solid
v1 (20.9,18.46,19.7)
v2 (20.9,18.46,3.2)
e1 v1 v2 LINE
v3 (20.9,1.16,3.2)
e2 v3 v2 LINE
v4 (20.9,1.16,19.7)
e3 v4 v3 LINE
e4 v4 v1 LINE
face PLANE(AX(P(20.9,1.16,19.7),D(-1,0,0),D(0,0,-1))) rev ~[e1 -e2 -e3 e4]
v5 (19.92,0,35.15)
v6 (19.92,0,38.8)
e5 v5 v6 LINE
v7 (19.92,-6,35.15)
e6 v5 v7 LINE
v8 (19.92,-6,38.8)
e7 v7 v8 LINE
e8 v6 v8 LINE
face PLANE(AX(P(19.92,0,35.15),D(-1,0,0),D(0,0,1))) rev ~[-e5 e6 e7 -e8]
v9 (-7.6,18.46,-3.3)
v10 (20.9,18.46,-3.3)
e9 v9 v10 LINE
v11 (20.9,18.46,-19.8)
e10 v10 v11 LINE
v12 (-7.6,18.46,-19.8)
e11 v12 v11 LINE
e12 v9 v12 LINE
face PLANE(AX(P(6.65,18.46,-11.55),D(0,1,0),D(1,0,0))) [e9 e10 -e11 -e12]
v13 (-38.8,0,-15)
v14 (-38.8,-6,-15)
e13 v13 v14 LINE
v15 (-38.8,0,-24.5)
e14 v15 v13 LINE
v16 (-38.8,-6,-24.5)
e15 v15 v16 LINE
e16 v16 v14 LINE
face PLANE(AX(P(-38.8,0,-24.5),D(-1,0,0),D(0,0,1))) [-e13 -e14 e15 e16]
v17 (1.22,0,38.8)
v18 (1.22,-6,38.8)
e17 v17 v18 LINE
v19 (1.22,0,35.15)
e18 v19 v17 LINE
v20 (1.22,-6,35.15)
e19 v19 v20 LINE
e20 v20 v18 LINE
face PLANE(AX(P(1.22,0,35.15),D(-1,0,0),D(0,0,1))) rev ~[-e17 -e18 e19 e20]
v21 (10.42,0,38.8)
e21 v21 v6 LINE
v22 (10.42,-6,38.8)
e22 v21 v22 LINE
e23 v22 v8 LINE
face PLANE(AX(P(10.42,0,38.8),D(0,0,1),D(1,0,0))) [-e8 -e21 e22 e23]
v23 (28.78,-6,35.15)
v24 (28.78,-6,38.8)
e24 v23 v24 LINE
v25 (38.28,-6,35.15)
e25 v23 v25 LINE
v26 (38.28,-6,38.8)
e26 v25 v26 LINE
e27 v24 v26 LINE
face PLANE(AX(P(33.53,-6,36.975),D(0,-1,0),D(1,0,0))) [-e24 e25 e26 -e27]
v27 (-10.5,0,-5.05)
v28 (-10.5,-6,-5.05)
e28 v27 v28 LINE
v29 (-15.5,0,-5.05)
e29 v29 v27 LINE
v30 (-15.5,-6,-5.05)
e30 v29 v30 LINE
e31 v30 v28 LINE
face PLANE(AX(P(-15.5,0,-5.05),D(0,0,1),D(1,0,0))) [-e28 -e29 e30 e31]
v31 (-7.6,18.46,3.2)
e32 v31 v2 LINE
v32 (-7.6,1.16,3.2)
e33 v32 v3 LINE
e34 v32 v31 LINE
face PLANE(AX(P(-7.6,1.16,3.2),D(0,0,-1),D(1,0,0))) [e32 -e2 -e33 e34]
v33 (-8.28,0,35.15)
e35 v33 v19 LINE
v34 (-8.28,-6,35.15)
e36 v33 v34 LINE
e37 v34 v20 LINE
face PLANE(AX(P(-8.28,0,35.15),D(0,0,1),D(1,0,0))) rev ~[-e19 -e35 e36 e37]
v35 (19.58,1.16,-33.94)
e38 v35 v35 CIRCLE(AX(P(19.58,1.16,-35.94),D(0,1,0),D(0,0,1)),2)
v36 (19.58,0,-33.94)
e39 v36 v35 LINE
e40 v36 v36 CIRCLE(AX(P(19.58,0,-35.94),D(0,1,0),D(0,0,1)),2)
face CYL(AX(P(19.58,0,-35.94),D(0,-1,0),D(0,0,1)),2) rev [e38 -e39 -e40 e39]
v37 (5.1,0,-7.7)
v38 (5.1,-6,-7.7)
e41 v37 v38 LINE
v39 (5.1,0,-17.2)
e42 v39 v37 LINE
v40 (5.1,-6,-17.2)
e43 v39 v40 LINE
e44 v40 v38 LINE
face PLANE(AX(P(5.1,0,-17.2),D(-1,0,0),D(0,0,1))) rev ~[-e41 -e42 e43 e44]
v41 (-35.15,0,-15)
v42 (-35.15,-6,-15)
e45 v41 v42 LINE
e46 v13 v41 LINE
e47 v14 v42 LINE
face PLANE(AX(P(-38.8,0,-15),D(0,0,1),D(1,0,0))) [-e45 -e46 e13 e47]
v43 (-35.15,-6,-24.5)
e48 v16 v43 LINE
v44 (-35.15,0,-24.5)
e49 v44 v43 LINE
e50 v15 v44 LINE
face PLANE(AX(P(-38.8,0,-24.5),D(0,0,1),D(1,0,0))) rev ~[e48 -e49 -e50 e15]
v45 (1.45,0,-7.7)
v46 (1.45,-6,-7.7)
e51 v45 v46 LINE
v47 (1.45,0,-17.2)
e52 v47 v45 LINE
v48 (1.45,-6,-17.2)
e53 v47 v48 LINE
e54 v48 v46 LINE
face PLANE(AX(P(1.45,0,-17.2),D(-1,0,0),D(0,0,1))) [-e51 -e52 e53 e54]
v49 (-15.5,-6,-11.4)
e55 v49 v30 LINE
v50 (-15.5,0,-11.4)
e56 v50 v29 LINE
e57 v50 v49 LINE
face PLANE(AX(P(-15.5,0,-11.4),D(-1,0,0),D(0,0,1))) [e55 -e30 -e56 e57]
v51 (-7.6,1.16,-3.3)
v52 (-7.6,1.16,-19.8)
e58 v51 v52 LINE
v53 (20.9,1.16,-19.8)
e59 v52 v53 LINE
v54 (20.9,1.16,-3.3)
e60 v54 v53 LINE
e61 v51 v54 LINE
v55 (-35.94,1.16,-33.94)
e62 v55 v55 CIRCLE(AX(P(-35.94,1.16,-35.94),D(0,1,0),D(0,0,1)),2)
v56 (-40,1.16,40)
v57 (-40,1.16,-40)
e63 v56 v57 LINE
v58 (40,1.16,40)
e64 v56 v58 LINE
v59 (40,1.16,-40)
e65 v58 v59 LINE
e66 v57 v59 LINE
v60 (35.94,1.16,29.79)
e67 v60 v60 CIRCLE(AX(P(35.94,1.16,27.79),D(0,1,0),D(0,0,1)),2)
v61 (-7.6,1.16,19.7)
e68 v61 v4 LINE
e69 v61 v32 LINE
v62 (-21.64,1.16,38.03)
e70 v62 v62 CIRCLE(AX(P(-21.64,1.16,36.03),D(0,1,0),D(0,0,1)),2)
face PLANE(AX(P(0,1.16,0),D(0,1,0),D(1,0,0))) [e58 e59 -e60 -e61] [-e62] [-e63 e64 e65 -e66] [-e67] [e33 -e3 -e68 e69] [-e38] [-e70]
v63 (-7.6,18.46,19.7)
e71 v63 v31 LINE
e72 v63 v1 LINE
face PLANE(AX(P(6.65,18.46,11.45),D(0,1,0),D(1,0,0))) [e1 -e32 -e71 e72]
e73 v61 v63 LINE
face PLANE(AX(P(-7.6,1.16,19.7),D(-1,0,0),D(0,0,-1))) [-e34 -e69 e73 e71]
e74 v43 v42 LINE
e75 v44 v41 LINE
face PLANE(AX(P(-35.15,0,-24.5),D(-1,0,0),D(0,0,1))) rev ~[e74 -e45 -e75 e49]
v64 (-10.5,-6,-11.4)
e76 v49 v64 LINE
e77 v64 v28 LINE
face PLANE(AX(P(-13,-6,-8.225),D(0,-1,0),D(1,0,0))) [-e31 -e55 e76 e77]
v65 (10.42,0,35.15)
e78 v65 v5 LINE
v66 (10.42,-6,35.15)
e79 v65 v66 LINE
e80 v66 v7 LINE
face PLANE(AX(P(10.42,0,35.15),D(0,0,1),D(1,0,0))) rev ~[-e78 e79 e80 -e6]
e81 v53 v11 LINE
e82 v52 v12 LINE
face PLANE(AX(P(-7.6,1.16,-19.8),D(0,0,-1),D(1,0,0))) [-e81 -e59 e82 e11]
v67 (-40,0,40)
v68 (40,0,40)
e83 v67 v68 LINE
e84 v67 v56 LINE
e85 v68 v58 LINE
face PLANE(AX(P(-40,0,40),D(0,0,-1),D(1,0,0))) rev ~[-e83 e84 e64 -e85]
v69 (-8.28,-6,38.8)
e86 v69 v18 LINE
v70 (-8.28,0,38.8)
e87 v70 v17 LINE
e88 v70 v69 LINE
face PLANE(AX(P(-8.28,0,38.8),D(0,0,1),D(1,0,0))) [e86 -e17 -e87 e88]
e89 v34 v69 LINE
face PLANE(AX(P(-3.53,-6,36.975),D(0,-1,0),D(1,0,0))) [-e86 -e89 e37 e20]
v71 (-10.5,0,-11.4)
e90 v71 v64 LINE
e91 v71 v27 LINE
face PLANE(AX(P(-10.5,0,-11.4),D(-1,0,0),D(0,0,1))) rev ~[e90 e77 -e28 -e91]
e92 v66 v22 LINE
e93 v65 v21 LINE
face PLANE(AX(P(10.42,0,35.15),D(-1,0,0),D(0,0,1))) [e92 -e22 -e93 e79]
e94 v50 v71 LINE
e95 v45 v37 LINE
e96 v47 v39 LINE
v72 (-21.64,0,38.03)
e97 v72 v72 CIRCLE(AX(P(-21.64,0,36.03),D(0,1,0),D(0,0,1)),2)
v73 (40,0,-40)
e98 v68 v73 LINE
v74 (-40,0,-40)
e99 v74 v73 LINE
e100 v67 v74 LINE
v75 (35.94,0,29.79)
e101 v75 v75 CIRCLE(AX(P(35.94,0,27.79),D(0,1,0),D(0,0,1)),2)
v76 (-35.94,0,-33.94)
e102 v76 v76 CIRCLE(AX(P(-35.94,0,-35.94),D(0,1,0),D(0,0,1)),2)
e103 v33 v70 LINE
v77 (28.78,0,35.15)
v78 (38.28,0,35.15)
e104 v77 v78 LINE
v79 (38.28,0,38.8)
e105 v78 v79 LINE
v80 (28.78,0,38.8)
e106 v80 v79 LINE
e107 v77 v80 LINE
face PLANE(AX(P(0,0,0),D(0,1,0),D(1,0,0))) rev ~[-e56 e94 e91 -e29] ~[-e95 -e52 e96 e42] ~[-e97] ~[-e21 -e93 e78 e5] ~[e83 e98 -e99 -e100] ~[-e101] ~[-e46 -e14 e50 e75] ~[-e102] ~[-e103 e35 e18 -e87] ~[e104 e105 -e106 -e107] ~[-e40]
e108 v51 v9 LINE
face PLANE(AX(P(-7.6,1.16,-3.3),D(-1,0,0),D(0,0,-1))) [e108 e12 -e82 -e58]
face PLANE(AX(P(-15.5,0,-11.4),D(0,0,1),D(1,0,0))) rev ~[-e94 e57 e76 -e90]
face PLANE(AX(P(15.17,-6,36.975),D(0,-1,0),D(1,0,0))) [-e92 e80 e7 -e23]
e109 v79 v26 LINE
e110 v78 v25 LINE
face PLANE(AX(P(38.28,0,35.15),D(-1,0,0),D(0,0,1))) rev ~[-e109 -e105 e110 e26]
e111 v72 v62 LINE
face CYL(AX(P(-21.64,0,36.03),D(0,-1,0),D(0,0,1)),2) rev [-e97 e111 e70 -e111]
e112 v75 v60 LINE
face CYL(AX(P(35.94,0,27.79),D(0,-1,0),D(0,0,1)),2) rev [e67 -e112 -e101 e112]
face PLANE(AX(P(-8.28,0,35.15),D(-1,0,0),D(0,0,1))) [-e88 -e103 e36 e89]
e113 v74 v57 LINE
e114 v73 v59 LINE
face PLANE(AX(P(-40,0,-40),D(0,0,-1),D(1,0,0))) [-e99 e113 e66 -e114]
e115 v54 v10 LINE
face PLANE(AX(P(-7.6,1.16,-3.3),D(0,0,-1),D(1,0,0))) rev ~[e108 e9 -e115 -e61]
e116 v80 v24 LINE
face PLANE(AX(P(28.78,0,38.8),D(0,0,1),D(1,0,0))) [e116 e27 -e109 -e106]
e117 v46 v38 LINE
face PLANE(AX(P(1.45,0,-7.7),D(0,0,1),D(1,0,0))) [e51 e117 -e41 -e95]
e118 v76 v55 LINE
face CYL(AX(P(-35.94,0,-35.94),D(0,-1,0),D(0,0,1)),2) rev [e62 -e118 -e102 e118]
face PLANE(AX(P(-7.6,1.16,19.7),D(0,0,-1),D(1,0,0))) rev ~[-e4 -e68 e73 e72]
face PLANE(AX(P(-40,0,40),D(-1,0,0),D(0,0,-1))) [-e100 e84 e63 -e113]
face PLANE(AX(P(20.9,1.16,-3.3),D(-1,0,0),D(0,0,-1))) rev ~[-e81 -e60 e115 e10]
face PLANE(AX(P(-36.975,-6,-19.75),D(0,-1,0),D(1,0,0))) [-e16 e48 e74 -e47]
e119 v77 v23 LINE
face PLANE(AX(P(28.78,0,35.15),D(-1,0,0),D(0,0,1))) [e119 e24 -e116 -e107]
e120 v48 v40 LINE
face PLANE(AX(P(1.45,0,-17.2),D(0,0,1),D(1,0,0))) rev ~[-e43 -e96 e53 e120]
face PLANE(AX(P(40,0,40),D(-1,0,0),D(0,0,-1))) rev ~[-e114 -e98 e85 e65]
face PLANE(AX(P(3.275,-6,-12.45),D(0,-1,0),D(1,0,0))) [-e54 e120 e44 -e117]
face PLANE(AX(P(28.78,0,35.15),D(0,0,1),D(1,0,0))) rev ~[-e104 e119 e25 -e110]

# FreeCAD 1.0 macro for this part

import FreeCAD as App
import Part
import Sketcher
from FreeCAD import Vector
Q = App.Units.Quantity


def add_polygon(sketch, points):
    """Adds a closed chain of lines whose ends are joined by coincident constraints."""
    first, n = sketch.GeometryCount, len(points)
    for a, b in zip(points, points[1:] + points[:1]):
        sketch.addGeometry(Part.LineSegment(App.Vector(*a, 0), App.Vector(*b, 0)), False)
    for i in range(n):
        sketch.addConstraint(Sketcher.Constraint("Coincident", first + i, 2, first + (i + 1) % n, 1))

doc = App.newDocument("Part")
body = doc.addObject("PartDesign::Body", "Body")

sketch1 = doc.addObject("Sketcher::SketchObject", "Sketch")
body.addObject(sketch1)
sketch1.AttachmentSupport = (doc.XZ_Plane, [""])
sketch1.MapMode = "FlatFace"
add_polygon(sketch1, [(-40, -40), (-40, 40), (40, 40), (40, -40)])
sketch1.addGeometry(Part.Circle(Vector(-21.6, 36, 0), Vector(0, 0, 1), 2), False)
sketch1.addGeometry(Part.Circle(Vector(35.9, 27.8, 0), Vector(0, 0, 1), 2), False)
sketch1.addGeometry(Part.Circle(Vector(-35.9, -35.9, 0), Vector(0, 0, 1), 2), False)
sketch1.addGeometry(Part.Circle(Vector(19.6, -35.9, 0), Vector(0, 0, 1), 2), False)
sketch1.addConstraint(Sketcher.Constraint("Vertical", 0))
sketch1.addConstraint(Sketcher.Constraint("Horizontal", 1))
sketch1.addConstraint(Sketcher.Constraint("Vertical", 2))
sketch1.addConstraint(Sketcher.Constraint("Horizontal", 3))
sketch1.addConstraint(Sketcher.Constraint("Equal", 4, 5))
sketch1.addConstraint(Sketcher.Constraint("Equal", 5, 6))
sketch1.addConstraint(Sketcher.Constraint("Equal", 6, 7))
sketch1.addConstraint(Sketcher.Constraint("Symmetric", 0, 2, 2, 2, -1, 1))
sketch1.addConstraint(Sketcher.Constraint("Horizontal", 6, 3, 7, 3))
sketch1.addConstraint(Sketcher.Constraint("Equal", 3, 0))
sketch1.addConstraint(Sketcher.Constraint("Diameter", 4, Q("4 mm")))
sketch1.addConstraint(Sketcher.Constraint("DistanceX", 1, 1, 1, 2, Q("80 mm")))
sketch1.addConstraint(Sketcher.Constraint("DistanceX", 6, 3, 4, 3, Q("14.3 mm")))
sketch1.addConstraint(Sketcher.Constraint("DistanceX", 4, 3, -1, 1, Q("21.64 mm")))
sketch1.addConstraint(Sketcher.Constraint("DistanceY", -1, 1, 4, 3, Q("36.03 mm")))
sketch1.addConstraint(Sketcher.Constraint("DistanceX", -1, 1, 5, 3, Q("35.94 mm")))
sketch1.addConstraint(Sketcher.Constraint("DistanceY", -1, 1, 5, 3, Q("27.79 mm")))
sketch1.addConstraint(Sketcher.Constraint("DistanceY", 6, 3, -1, 1, Q("35.94 mm")))
sketch1.addConstraint(Sketcher.Constraint("DistanceX", -1, 1, 7, 3, Q("19.58 mm")))
pad1 = doc.addObject("PartDesign::Pad", "Pad")
body.addObject(pad1)
pad1.Profile = sketch1
pad1.Length = 1.16
pad1.Reversed = True

sketch2 = doc.addObject("Sketcher::SketchObject", "Sketch001")
body.addObject(sketch2)
sketch2.AttachmentSupport = (doc.XZ_Plane, [""])
sketch2.MapMode = "FlatFace"
sketch2.AttachmentOffset = App.Placement(Vector(0, 0, -1.16), App.Rotation())
add_polygon(sketch2, [(-8, -20), (-8, -3), (21, -3), (21, -20)])
add_polygon(sketch2, [(-8, 3), (-8, 20), (21, 20), (21, 3)])
sketch2.addConstraint(Sketcher.Constraint("Vertical", 0))
sketch2.addConstraint(Sketcher.Constraint("Horizontal", 1))
sketch2.addConstraint(Sketcher.Constraint("Vertical", 2))
sketch2.addConstraint(Sketcher.Constraint("Horizontal", 3))
sketch2.addConstraint(Sketcher.Constraint("Vertical", 4))
sketch2.addConstraint(Sketcher.Constraint("Horizontal", 5))
sketch2.addConstraint(Sketcher.Constraint("Vertical", 6))
sketch2.addConstraint(Sketcher.Constraint("Horizontal", 7))
sketch2.addConstraint(Sketcher.Constraint("Vertical", 3, 2, 4, 2))
sketch2.addConstraint(Sketcher.Constraint("Vertical", 2, 2, 5, 2))
sketch2.addConstraint(Sketcher.Constraint("Equal", 2, 4))
sketch2.addConstraint(Sketcher.Constraint("DistanceX", 1, 1, 1, 2, Q("28.5 mm")))
sketch2.addConstraint(Sketcher.Constraint("DistanceY", 0, 1, 0, 2, Q("16.5 mm")))
sketch2.addConstraint(Sketcher.Constraint("DistanceY", 0, 2, 4, 2, Q("23 mm")))
sketch2.addConstraint(Sketcher.Constraint("DistanceX", 0, 2, -1, 1, Q("7.6 mm")))
sketch2.addConstraint(Sketcher.Constraint("DistanceY", 0, 2, -1, 1, Q("3.3 mm")))
pad2 = doc.addObject("PartDesign::Pad", "Pad001")
body.addObject(pad2)
pad2.Profile = sketch2
pad2.Length = 17.3
pad2.Reversed = True

sketch3 = doc.addObject("Sketcher::SketchObject", "Sketch002")
body.addObject(sketch3)
sketch3.AttachmentSupport = (doc.XZ_Plane, [""])
sketch3.MapMode = "FlatFace"
add_polygon(sketch3, [(28.8, 38.8), (28.8, 35.1), (38.3, 35.1), (38.3, 38.8)])
add_polygon(sketch3, [(10.4, 38.8), (10.4, 35.1), (19.9, 35.1), (19.9, 38.8)])
add_polygon(sketch3, [(-8.3, 38.8), (-8.3, 35.1), (1.2, 35.1), (1.2, 38.8)])
add_polygon(sketch3, [(1.4, -7.7), (1.4, -17.2), (5.1, -17.2), (5.1, -7.7)])
add_polygon(sketch3, [(-38.8, -15), (-38.8, -24.5), (-35.1, -24.5), (-35.1, -15)])
add_polygon(sketch3, [(-15.5, -5), (-15.5, -11.4), (-10.5, -11.4), (-10.5, -5)])
sketch3.addConstraint(Sketcher.Constraint("Vertical", 0))
sketch3.addConstraint(Sketcher.Constraint("Horizontal", 1))
sketch3.addConstraint(Sketcher.Constraint("Vertical", 2))
sketch3.addConstraint(Sketcher.Constraint("Horizontal", 3))
sketch3.addConstraint(Sketcher.Constraint("Vertical", 4))
sketch3.addConstraint(Sketcher.Constraint("Horizontal", 5))
sketch3.addConstraint(Sketcher.Constraint("Vertical", 6))
sketch3.addConstraint(Sketcher.Constraint("Horizontal", 7))
sketch3.addConstraint(Sketcher.Constraint("Vertical", 8))
sketch3.addConstraint(Sketcher.Constraint("Horizontal", 9))
sketch3.addConstraint(Sketcher.Constraint("Vertical", 10))
sketch3.addConstraint(Sketcher.Constraint("Horizontal", 11))
sketch3.addConstraint(Sketcher.Constraint("Vertical", 12))
sketch3.addConstraint(Sketcher.Constraint("Horizontal", 13))
sketch3.addConstraint(Sketcher.Constraint("Vertical", 14))
sketch3.addConstraint(Sketcher.Constraint("Horizontal", 15))
sketch3.addConstraint(Sketcher.Constraint("Vertical", 16))
sketch3.addConstraint(Sketcher.Constraint("Horizontal", 17))
sketch3.addConstraint(Sketcher.Constraint("Vertical", 18))
sketch3.addConstraint(Sketcher.Constraint("Horizontal", 19))
sketch3.addConstraint(Sketcher.Constraint("Vertical", 20))
sketch3.addConstraint(Sketcher.Constraint("Horizontal", 21))
sketch3.addConstraint(Sketcher.Constraint("Vertical", 22))
sketch3.addConstraint(Sketcher.Constraint("Horizontal", 23))
sketch3.addConstraint(Sketcher.Constraint("Horizontal", 1, 2, 4, 2))
sketch3.addConstraint(Sketcher.Constraint("Horizontal", 3, 2, 6, 2))
sketch3.addConstraint(Sketcher.Constraint("Horizontal", 5, 2, 8, 2))
sketch3.addConstraint(Sketcher.Constraint("Horizontal", 7, 2, 10, 2))
sketch3.addConstraint(Sketcher.Constraint("Equal", 3, 5))
sketch3.addConstraint(Sketcher.Constraint("Equal", 7, 9))
sketch3.addConstraint(Sketcher.Constraint("Equal", 15, 17))
sketch3.addConstraint(Sketcher.Constraint("Equal", 19, 0))
sketch3.addConstraint(Sketcher.Constraint("Equal", 11, 12))
sketch3.addConstraint(Sketcher.Constraint("Equal", 14, 16))
sketch3.addConstraint(Sketcher.Constraint("DistanceX", 21, 1, 21, 2, Q("5 mm")))
sketch3.addConstraint(Sketcher.Constraint("DistanceX", 1, 1, 1, 2, Q("9.5 mm")))
sketch3.addConstraint(Sketcher.Constraint("DistanceY", 18, 2, -1, 1, Q("15 mm")))
sketch3.addConstraint(Sketcher.Constraint("DistanceY", 12, 2, 10, 2, Q("56 mm")))
sketch3.addConstraint(Sketcher.Constraint("DistanceX", 13, 1, 13, 2, Q("3.65 mm")))
sketch3.addConstraint(Sketcher.Constraint("DistanceY", 20, 2, 20, 1, Q("6.35 mm")))
sketch3.addConstraint(Sketcher.Constraint("DistanceY", -1, 1, 2, 2, Q("38.8 mm")))
sketch3.addConstraint(Sketcher.Constraint("DistanceX", -1, 1, 13, 2, Q("5.1 mm")))
sketch3.addConstraint(Sketcher.Constraint("DistanceX", 16, 2, -1, 1, Q("38.8 mm")))
sketch3.addConstraint(Sketcher.Constraint("DistanceX", 20, 2, -1, 1, Q("15.5 mm")))
sketch3.addConstraint(Sketcher.Constraint("DistanceY", 20, 2, -1, 1, Q("11.4 mm")))
sketch3.addConstraint(Sketcher.Constraint("DistanceX", 8, 2, 4, 2, Q("18.7 mm")))
sketch3.addConstraint(Sketcher.Constraint("DistanceX", -1, 1, 0, 2, Q("28.78 mm")))
sketch3.addConstraint(Sketcher.Constraint("DistanceX", -1, 1, 4, 2, Q("10.42 mm")))
pad3 = doc.addObject("PartDesign::Pad", "Pad002")
body.addObject(pad3)
pad3.Profile = sketch3
pad3.Length = 6

doc.recompute()
